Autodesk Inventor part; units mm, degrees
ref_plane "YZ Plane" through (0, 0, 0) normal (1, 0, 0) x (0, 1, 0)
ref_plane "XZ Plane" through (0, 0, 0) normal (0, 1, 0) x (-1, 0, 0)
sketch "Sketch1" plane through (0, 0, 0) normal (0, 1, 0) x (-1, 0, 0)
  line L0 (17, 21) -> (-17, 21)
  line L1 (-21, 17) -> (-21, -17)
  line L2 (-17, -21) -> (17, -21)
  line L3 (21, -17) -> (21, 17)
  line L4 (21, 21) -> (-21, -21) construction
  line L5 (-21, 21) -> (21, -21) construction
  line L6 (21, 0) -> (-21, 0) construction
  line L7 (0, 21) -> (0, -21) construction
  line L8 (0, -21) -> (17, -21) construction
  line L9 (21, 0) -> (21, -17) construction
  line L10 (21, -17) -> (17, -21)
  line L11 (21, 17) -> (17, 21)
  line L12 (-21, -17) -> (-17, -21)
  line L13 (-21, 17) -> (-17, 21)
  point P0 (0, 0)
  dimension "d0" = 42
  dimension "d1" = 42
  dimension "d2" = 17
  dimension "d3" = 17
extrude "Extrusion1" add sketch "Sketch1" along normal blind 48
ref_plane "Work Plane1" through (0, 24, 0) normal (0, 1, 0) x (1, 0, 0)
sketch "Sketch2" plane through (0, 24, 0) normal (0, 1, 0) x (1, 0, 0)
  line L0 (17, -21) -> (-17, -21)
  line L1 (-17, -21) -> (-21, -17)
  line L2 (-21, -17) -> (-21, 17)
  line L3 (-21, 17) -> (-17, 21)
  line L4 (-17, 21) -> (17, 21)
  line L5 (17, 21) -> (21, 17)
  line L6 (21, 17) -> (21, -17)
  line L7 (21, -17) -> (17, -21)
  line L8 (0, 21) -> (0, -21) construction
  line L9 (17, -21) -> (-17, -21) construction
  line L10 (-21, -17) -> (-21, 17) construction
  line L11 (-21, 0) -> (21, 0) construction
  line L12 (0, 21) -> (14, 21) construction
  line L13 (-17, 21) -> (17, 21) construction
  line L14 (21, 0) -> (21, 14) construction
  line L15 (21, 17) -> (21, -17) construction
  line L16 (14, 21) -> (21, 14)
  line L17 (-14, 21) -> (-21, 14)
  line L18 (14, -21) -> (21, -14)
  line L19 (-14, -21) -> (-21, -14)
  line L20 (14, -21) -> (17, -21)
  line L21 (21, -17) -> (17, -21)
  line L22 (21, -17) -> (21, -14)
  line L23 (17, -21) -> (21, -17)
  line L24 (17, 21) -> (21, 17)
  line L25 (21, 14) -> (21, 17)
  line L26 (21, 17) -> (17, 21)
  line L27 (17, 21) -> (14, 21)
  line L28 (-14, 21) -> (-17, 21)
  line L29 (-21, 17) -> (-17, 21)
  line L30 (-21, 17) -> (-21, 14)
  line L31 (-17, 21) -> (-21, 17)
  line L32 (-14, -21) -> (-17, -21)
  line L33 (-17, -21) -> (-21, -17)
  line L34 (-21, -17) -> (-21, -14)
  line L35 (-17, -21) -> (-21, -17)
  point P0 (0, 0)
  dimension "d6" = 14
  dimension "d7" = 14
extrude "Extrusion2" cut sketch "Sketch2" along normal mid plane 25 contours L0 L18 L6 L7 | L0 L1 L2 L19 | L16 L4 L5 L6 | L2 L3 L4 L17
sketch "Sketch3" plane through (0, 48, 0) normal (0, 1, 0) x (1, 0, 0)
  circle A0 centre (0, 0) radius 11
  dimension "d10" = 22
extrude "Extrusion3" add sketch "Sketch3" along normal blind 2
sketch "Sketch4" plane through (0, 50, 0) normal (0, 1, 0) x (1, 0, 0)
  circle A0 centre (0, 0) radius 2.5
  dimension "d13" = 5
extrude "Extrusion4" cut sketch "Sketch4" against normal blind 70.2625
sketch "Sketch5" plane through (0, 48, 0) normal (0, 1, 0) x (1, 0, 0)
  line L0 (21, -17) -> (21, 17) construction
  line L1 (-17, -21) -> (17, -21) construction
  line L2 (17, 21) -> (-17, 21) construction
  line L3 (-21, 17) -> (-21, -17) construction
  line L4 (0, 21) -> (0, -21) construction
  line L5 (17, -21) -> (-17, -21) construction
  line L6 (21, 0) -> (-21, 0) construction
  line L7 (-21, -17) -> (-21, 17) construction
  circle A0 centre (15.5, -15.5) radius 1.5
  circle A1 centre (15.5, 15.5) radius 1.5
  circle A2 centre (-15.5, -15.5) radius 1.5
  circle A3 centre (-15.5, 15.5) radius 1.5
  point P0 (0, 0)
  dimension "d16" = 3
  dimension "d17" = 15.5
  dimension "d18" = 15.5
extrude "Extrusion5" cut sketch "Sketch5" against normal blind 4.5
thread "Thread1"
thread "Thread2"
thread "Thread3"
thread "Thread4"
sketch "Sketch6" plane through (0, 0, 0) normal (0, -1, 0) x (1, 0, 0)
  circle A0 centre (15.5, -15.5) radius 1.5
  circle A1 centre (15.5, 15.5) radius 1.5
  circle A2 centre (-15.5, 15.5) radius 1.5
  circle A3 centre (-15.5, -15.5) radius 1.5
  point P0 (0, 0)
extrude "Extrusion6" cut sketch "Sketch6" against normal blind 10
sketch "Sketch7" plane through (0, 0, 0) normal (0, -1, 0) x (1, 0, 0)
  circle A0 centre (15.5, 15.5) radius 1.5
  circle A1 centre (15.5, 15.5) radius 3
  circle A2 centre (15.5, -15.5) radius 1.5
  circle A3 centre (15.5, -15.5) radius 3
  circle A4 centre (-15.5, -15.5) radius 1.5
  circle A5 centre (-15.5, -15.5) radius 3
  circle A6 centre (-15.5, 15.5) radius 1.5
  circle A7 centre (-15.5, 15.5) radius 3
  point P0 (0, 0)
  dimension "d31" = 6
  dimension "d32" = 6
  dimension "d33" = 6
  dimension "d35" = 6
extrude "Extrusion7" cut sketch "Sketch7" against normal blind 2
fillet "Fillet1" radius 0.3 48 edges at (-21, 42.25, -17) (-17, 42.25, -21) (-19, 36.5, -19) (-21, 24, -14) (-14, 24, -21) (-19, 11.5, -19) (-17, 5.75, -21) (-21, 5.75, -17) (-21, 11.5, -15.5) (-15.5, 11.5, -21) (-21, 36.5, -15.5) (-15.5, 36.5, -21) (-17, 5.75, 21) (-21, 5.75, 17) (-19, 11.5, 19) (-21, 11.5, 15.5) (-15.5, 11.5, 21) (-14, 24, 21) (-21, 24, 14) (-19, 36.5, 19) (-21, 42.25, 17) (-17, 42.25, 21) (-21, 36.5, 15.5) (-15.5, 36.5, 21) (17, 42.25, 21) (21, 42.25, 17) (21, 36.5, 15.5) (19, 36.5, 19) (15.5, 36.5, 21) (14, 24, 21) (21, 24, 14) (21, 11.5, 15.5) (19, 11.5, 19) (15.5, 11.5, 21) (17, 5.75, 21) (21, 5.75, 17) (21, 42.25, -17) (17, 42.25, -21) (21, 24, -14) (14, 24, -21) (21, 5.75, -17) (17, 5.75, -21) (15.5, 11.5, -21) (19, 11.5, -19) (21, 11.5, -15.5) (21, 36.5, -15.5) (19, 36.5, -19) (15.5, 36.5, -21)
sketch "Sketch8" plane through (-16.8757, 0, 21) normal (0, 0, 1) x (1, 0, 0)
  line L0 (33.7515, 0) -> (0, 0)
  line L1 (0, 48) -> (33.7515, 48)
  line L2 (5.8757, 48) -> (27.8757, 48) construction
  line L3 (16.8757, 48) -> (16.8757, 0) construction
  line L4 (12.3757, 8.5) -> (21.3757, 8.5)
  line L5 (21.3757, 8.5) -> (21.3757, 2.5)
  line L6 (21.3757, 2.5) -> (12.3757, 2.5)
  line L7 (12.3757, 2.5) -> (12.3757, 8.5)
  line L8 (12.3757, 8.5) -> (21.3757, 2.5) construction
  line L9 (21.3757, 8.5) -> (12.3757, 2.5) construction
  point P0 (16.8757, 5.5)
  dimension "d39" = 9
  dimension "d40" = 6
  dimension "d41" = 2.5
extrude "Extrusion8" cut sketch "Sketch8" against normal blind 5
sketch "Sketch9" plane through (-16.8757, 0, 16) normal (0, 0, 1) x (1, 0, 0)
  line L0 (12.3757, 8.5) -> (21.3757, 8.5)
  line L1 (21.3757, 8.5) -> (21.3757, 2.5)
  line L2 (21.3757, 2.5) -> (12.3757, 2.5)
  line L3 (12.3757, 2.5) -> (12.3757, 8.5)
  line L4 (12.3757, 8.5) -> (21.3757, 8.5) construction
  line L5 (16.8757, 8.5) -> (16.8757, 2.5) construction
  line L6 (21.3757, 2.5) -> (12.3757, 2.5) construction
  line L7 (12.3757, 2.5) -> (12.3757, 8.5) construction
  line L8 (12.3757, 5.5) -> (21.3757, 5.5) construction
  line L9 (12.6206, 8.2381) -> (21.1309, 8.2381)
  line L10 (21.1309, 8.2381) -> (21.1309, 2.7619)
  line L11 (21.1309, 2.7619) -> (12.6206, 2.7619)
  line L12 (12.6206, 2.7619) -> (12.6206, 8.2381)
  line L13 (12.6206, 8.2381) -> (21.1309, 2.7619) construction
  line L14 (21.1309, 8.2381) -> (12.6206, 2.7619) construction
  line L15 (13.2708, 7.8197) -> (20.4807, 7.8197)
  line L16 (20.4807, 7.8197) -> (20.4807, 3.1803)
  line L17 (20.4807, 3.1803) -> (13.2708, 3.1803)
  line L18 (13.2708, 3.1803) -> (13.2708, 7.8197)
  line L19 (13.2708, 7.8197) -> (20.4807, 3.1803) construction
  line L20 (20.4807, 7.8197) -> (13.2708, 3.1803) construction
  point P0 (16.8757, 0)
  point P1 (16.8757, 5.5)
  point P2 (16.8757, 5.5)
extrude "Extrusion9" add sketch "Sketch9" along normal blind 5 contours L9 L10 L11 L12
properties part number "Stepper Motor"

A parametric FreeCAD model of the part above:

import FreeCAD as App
import Part
import Sketcher

V = App.Vector


def edges_at(feature, points):
    """Names of the edges that pass closest to the given points."""
    edges = feature.Shape.Edges
    near = lambda p: min(range(len(edges)), key=lambda i: edges[i].distToShape(Part.Vertex(*p))[0])
    return sorted({f"Edge{near(p) + 1}" for p in points})

doc = App.newDocument("Part")
body = doc.addObject("PartDesign::Body", "Body")

# Sketch on XZ plane
sketch1 = body.newObject("Sketcher::SketchObject", "Sketch")
sketch1.AttachmentSupport = (doc.getObject("XZ_Plane"), [""])
sketch1.MapMode = "FlatFace"
sketch1.addGeometry(Part.LineSegment(V(-21, 17, 0), V(-17, 21, 0)), False)
sketch1.addGeometry(Part.LineSegment(V(-17, 21, 0), V(17, 21, 0)), False)
sketch1.addGeometry(Part.LineSegment(V(17, 21, 0), V(21, 17, 0)), False)
sketch1.addGeometry(Part.LineSegment(V(21, 17, 0), V(21, -17, 0)), False)
sketch1.addGeometry(Part.LineSegment(V(21, -17, 0), V(17, -21, 0)), False)
sketch1.addGeometry(Part.LineSegment(V(17, -21, 0), V(-17, -21, 0)), False)
sketch1.addGeometry(Part.LineSegment(V(-17, -21, 0), V(-21, -17, 0)), False)
sketch1.addGeometry(Part.LineSegment(V(-21, -17, 0), V(-21, 17, 0)), False)
sketch1.addConstraint(Sketcher.Constraint("Coincident", 0, 2, 1, 1))
sketch1.addConstraint(Sketcher.Constraint("Coincident", 1, 2, 2, 1))
sketch1.addConstraint(Sketcher.Constraint("Coincident", 2, 2, 3, 1))
sketch1.addConstraint(Sketcher.Constraint("Coincident", 3, 2, 4, 1))
sketch1.addConstraint(Sketcher.Constraint("Coincident", 4, 2, 5, 1))
sketch1.addConstraint(Sketcher.Constraint("Coincident", 5, 2, 6, 1))
sketch1.addConstraint(Sketcher.Constraint("Coincident", 6, 2, 7, 1))
sketch1.addConstraint(Sketcher.Constraint("Coincident", 7, 2, 0, 1))
sketch1.addConstraint(Sketcher.Constraint("Horizontal", 1))
sketch1.addConstraint(Sketcher.Constraint("Vertical", 3))
sketch1.addConstraint(Sketcher.Constraint("Horizontal", 5))
sketch1.addConstraint(Sketcher.Constraint("Vertical", 7))
sketch1.addConstraint(Sketcher.Constraint("Symmetric", 0, 2, 4, 2, -1, 1))
sketch1.addConstraint(Sketcher.Constraint("Symmetric", 2, 2, 6, 2, -1, 1))
sketch1.addConstraint(Sketcher.Constraint("Perpendicular", 0, 2))
sketch1.addConstraint(Sketcher.Constraint("Perpendicular", 2, 4))
sketch1.addConstraint(Sketcher.Constraint("Perpendicular", 4, 6))
sketch1.addConstraint(Sketcher.Constraint("Horizontal", 3, 2, 6, 2))
sketch1.addConstraint(Sketcher.Constraint("Vertical", 1, 2, 4, 2))
sketch1.addConstraint(Sketcher.Constraint("Equal", 5, 3))
sketch1.addConstraint(Sketcher.Constraint("DistanceX", 0, 2, -1, 1, 17.0))
sketch1.addConstraint(Sketcher.Constraint("DistanceY", 4, 2, 1, 2, 42.0))
pad1 = body.newObject("PartDesign::Pad", "Pad")
pad1.Profile = sketch1
pad1.Length = 48
pad1.Reversed = True

# Sketch on XZ plane
sketch2 = body.newObject("Sketcher::SketchObject", "Sketch001")
sketch2.AttachmentSupport = (doc.getObject("XZ_Plane"), [""])
sketch2.MapMode = "FlatFace"
sketch2.AttachmentOffset = App.Placement(V(0, 0, -24), App.Rotation())
sketch2.addGeometry(Part.LineSegment(V(14, 21, 0), V(17, 21, 0)), False)
sketch2.addGeometry(Part.LineSegment(V(17, 21, 0), V(21, 17, 0)), False)
sketch2.addGeometry(Part.LineSegment(V(21, 17, 0), V(21, 14, 0)), False)
sketch2.addGeometry(Part.LineSegment(V(21, 14, 0), V(14, 21, 0)), False)
sketch2.addGeometry(Part.LineSegment(V(-17, 21, 0), V(-14, 21, 0)), False)
sketch2.addGeometry(Part.LineSegment(V(-14, 21, 0), V(-21, 14, 0)), False)
sketch2.addGeometry(Part.LineSegment(V(-21, 14, 0), V(-21, 17, 0)), False)
sketch2.addGeometry(Part.LineSegment(V(-21, 17, 0), V(-17, 21, 0)), False)
sketch2.addGeometry(Part.LineSegment(V(14, -21, 0), V(21, -14, 0)), False)
sketch2.addGeometry(Part.LineSegment(V(21, -14, 0), V(21, -17, 0)), False)
sketch2.addGeometry(Part.LineSegment(V(21, -17, 0), V(17, -21, 0)), False)
sketch2.addGeometry(Part.LineSegment(V(17, -21, 0), V(14, -21, 0)), False)
sketch2.addGeometry(Part.LineSegment(V(-21, -17, 0), V(-21, -14, 0)), False)
sketch2.addGeometry(Part.LineSegment(V(-21, -14, 0), V(-14, -21, 0)), False)
sketch2.addGeometry(Part.LineSegment(V(-14, -21, 0), V(-17, -21, 0)), False)
sketch2.addGeometry(Part.LineSegment(V(-17, -21, 0), V(-21, -17, 0)), False)
sketch2.addConstraint(Sketcher.Constraint("Coincident", 0, 2, 1, 1))
sketch2.addConstraint(Sketcher.Constraint("Coincident", 1, 2, 2, 1))
sketch2.addConstraint(Sketcher.Constraint("Coincident", 2, 2, 3, 1))
sketch2.addConstraint(Sketcher.Constraint("Coincident", 3, 2, 0, 1))
sketch2.addConstraint(Sketcher.Constraint("Coincident", 4, 2, 5, 1))
sketch2.addConstraint(Sketcher.Constraint("Coincident", 5, 2, 6, 1))
sketch2.addConstraint(Sketcher.Constraint("Coincident", 6, 2, 7, 1))
sketch2.addConstraint(Sketcher.Constraint("Coincident", 7, 2, 4, 1))
sketch2.addConstraint(Sketcher.Constraint("Coincident", 8, 2, 9, 1))
sketch2.addConstraint(Sketcher.Constraint("Coincident", 9, 2, 10, 1))
sketch2.addConstraint(Sketcher.Constraint("Coincident", 10, 2, 11, 1))
sketch2.addConstraint(Sketcher.Constraint("Coincident", 11, 2, 8, 1))
sketch2.addConstraint(Sketcher.Constraint("Coincident", 12, 2, 13, 1))
sketch2.addConstraint(Sketcher.Constraint("Coincident", 13, 2, 14, 1))
sketch2.addConstraint(Sketcher.Constraint("Coincident", 14, 2, 15, 1))
sketch2.addConstraint(Sketcher.Constraint("Coincident", 15, 2, 12, 1))
sketch2.addConstraint(Sketcher.Constraint("Horizontal", 0))
sketch2.addConstraint(Sketcher.Constraint("Vertical", 2))
sketch2.addConstraint(Sketcher.Constraint("Horizontal", 4))
sketch2.addConstraint(Sketcher.Constraint("Vertical", 6))
sketch2.addConstraint(Sketcher.Constraint("Vertical", 9))
sketch2.addConstraint(Sketcher.Constraint("Horizontal", 11))
sketch2.addConstraint(Sketcher.Constraint("Vertical", 12))
sketch2.addConstraint(Sketcher.Constraint("Horizontal", 14))
sketch2.addConstraint(Sketcher.Constraint("Symmetric", 5, 2, 8, 2, -1, 1))
sketch2.addConstraint(Sketcher.Constraint("Symmetric", 7, 2, 10, 2, -1, 1))
sketch2.addConstraint(Sketcher.Constraint("Symmetric", 2, 2, 12, 2, -1, 1))
sketch2.addConstraint(Sketcher.Constraint("Symmetric", 3, 2, 13, 2, -1, 1))
sketch2.addConstraint(Sketcher.Constraint("Symmetric", 3, 2, 4, 2, -2))
sketch2.addConstraint(Sketcher.Constraint("Symmetric", 2, 2, 5, 2, -2))
sketch2.addConstraint(Sketcher.Constraint("Parallel", 1, 3))
sketch2.addConstraint(Sketcher.Constraint("Perpendicular", 3, 5))
sketch2.addConstraint(Sketcher.Constraint("Parallel", 5, 7))
sketch2.addConstraint(Sketcher.Constraint("Parallel", 7, 8))
sketch2.addConstraint(Sketcher.Constraint("Parallel", 8, 10))
sketch2.addConstraint(Sketcher.Constraint("Parallel", 13, 15))
sketch2.addConstraint(Sketcher.Constraint("Horizontal", 1, 2, 6, 2))
sketch2.addConstraint(Sketcher.Constraint("Horizontal", 9, 2, 15, 2))
sketch2.addConstraint(Sketcher.Constraint("DistanceY", -1, 1, 2, 2, 14.0))
sketch2.addConstraint(Sketcher.Constraint("DistanceX", -1, 1, 3, 2, 14.0))
sketch2.addConstraint(Sketcher.Constraint("DistanceX", 0, 1, 0, 2, 3.0))
sketch2.addConstraint(Sketcher.Constraint("DistanceY", -1, 1, 0, 2, 21.0))
pocket1 = body.newObject("PartDesign::Pocket", "Pocket")
pocket1.Profile = sketch2
pocket1.Length = 25
pocket1.Midplane = True

# Sketch on XZ plane
sketch3 = body.newObject("Sketcher::SketchObject", "Sketch002")
sketch3.AttachmentSupport = (doc.getObject("XZ_Plane"), [""])
sketch3.MapMode = "FlatFace"
sketch3.AttachmentOffset = App.Placement(V(0, 0, -48), App.Rotation())
sketch3.addGeometry(Part.Circle(V(0, 0, 0), V(0, 0, 1), 11), False)
sketch3.addConstraint(Sketcher.Constraint("Coincident", 0, 3, -1, 1))
sketch3.addConstraint(Sketcher.Constraint("Diameter", 0, 22.0))
pad2 = body.newObject("PartDesign::Pad", "Pad001")
pad2.Profile = sketch3
pad2.Length = 2
pad2.Reversed = True

# Sketch on XZ plane
sketch4 = body.newObject("Sketcher::SketchObject", "Sketch003")
sketch4.AttachmentSupport = (doc.getObject("XZ_Plane"), [""])
sketch4.MapMode = "FlatFace"
sketch4.AttachmentOffset = App.Placement(V(0, 0, -50), App.Rotation())
sketch4.addGeometry(Part.Circle(V(0, 0, 0), V(0, 0, 1), 2.5), False)
sketch4.addConstraint(Sketcher.Constraint("Coincident", 0, 3, -1, 1))
sketch4.addConstraint(Sketcher.Constraint("Diameter", 0, 5.0))
pocket2 = body.newObject("PartDesign::Pocket", "Pocket001")
pocket2.Profile = sketch4
pocket2.Length = 70.2625
pocket2.Reversed = True

# Sketch on XZ plane
sketch5 = body.newObject("Sketcher::SketchObject", "Sketch004")
sketch5.AttachmentSupport = (doc.getObject("XZ_Plane"), [""])
sketch5.MapMode = "FlatFace"
sketch5.AttachmentOffset = App.Placement(V(0, 0, -48), App.Rotation())
sketch5.addGeometry(Part.Circle(V(15.5, 15.5, 0), V(0, 0, 1), 1.5), False)
sketch5.addGeometry(Part.Circle(V(15.5, -15.5, 0), V(0, 0, 1), 1.5), False)
sketch5.addGeometry(Part.Circle(V(-15.5, 15.5, 0), V(0, 0, 1), 1.5), False)
sketch5.addGeometry(Part.Circle(V(-15.5, -15.5, 0), V(0, 0, 1), 1.5), False)
sketch5.addConstraint(Sketcher.Constraint("Equal", 0, 1))
sketch5.addConstraint(Sketcher.Constraint("Equal", 1, 2))
sketch5.addConstraint(Sketcher.Constraint("Equal", 2, 3))
sketch5.addConstraint(Sketcher.Constraint("Symmetric", 1, 3, 2, 3, -1, 1))
sketch5.addConstraint(Sketcher.Constraint("Symmetric", 0, 3, 3, 3, -1, 1))
sketch5.addConstraint(Sketcher.Constraint("Symmetric", 0, 3, 2, 3, -2))
sketch5.addConstraint(Sketcher.Constraint("Diameter", 0, 3.0))
sketch5.addConstraint(Sketcher.Constraint("DistanceX", -1, 1, 0, 3, 15.5))
sketch5.addConstraint(Sketcher.Constraint("DistanceY", -1, 1, 0, 3, 15.5))
pocket3 = body.newObject("PartDesign::Pocket", "Pocket002")
pocket3.Profile = sketch5
pocket3.Length = 4.5
pocket3.Reversed = True

# Sketch on XZ plane
sketch6 = body.newObject("Sketcher::SketchObject", "Sketch005")
sketch6.AttachmentSupport = (doc.getObject("XZ_Plane"), [""])
sketch6.MapMode = "FlatFace"
sketch6.addGeometry(Part.Circle(V(15.5, -15.5, 0), V(0, 0, 1), 1.5), False)
sketch6.addGeometry(Part.Circle(V(15.5, 15.5, 0), V(0, 0, 1), 1.5), False)
sketch6.addGeometry(Part.Circle(V(-15.5, 15.5, 0), V(0, 0, 1), 1.5), False)
sketch6.addGeometry(Part.Circle(V(-15.5, -15.5, 0), V(0, 0, 1), 1.5), False)
sketch6.addConstraint(Sketcher.Constraint("Equal", 0, 1))
sketch6.addConstraint(Sketcher.Constraint("Equal", 1, 2))
sketch6.addConstraint(Sketcher.Constraint("Equal", 2, 3))
sketch6.addConstraint(Sketcher.Constraint("Symmetric", 0, 3, 2, 3, -1, 1))
sketch6.addConstraint(Sketcher.Constraint("Symmetric", 1, 3, 3, 3, -1, 1))
sketch6.addConstraint(Sketcher.Constraint("Symmetric", 1, 3, 2, 3, -2))
sketch6.addConstraint(Sketcher.Constraint("Diameter", 0, 3.0))
sketch6.addConstraint(Sketcher.Constraint("DistanceY", 0, 3, 1, 3, 31.0))
sketch6.addConstraint(Sketcher.Constraint("DistanceX", 2, 3, 1, 3, 31.0))
pocket4 = body.newObject("PartDesign::Pocket", "Pocket003")
pocket4.Profile = sketch6
pocket4.Length = 10

# Sketch on XZ plane
sketch7 = body.newObject("Sketcher::SketchObject", "Sketch006")
sketch7.AttachmentSupport = (doc.getObject("XZ_Plane"), [""])
sketch7.MapMode = "FlatFace"
sketch7.addGeometry(Part.Circle(V(15.5, 15.5, 0), V(0, 0, 1), 3), False)
sketch7.addGeometry(Part.Circle(V(15.5, 15.5, 0), V(0, 0, 1), 1.5), False)
sketch7.addGeometry(Part.Circle(V(15.5, -15.5, 0), V(0, 0, 1), 3), False)
sketch7.addGeometry(Part.Circle(V(15.5, -15.5, 0), V(0, 0, 1), 1.5), False)
sketch7.addGeometry(Part.Circle(V(-15.5, -15.5, 0), V(0, 0, 1), 3), False)
sketch7.addGeometry(Part.Circle(V(-15.5, -15.5, 0), V(0, 0, 1), 1.5), False)
sketch7.addGeometry(Part.Circle(V(-15.5, 15.5, 0), V(0, 0, 1), 3), False)
sketch7.addGeometry(Part.Circle(V(-15.5, 15.5, 0), V(0, 0, 1), 1.5), False)
sketch7.addConstraint(Sketcher.Constraint("Coincident", 1, 3, 0, 3))
sketch7.addConstraint(Sketcher.Constraint("Coincident", 3, 3, 2, 3))
sketch7.addConstraint(Sketcher.Constraint("Coincident", 5, 3, 4, 3))
sketch7.addConstraint(Sketcher.Constraint("Coincident", 7, 3, 6, 3))
sketch7.addConstraint(Sketcher.Constraint("Equal", 0, 2))
sketch7.addConstraint(Sketcher.Constraint("Equal", 1, 3))
sketch7.addConstraint(Sketcher.Constraint("Equal", 2, 4))
sketch7.addConstraint(Sketcher.Constraint("Equal", 3, 5))
sketch7.addConstraint(Sketcher.Constraint("Equal", 4, 6))
sketch7.addConstraint(Sketcher.Constraint("Equal", 5, 7))
sketch7.addConstraint(Sketcher.Constraint("Symmetric", 0, 3, 4, 3, -1, 1))
sketch7.addConstraint(Sketcher.Constraint("Symmetric", 2, 3, 6, 3, -1, 1))
sketch7.addConstraint(Sketcher.Constraint("Symmetric", 2, 3, 4, 3, -2))
sketch7.addConstraint(Sketcher.Constraint("Diameter", 0, 6.0))
sketch7.addConstraint(Sketcher.Constraint("Diameter", 1, 3.0))
sketch7.addConstraint(Sketcher.Constraint("DistanceY", 2, 3, 0, 3, 31.0))
sketch7.addConstraint(Sketcher.Constraint("DistanceX", 4, 3, 2, 3, 31.0))
pocket5 = body.newObject("PartDesign::Pocket", "Pocket004")
pocket5.Profile = sketch7
pocket5.Length = 2
doc.recompute()

fillet = body.newObject("PartDesign::Fillet", "Fillet")
fillet.Base = (pocket5, edges_at(pocket5, [
    (-21, 42.25, -17),
    (-17, 42.25, -21),
    (-19, 36.5, -19),
    (-21, 24, -14),
    (-14, 24, -21),
    (-19, 11.5, -19),
    (-17, 5.75, -21),
    (-21, 5.75, -17),
    (-21, 11.5, -15.5),
    (-15.5, 11.5, -21),
    (-21, 36.5, -15.5),
    (-15.5, 36.5, -21),
    (-17, 5.75, 21),
    (-21, 5.75, 17),
    (-19, 11.5, 19),
    (-21, 11.5, 15.5),
    (-15.5, 11.5, 21),
    (-14, 24, 21),
    (-21, 24, 14),
    (-19, 36.5, 19),
    (-21, 42.25, 17),
    (-17, 42.25, 21),
    (-21, 36.5, 15.5),
    (-15.5, 36.5, 21),
    (17, 42.25, 21),
    (21, 42.25, 17),
    (21, 36.5, 15.5),
    (19, 36.5, 19),
    (15.5, 36.5, 21),
    (14, 24, 21),
    (21, 24, 14),
    (21, 11.5, 15.5),
    (19, 11.5, 19),
    (15.5, 11.5, 21),
    (17, 5.75, 21),
    (21, 5.75, 17),
    (21, 42.25, -17),
    (17, 42.25, -21),
    (21, 24, -14),
    (14, 24, -21),
    (21, 5.75, -17),
    (17, 5.75, -21),
    (15.5, 11.5, -21),
    (19, 11.5, -19),
    (21, 11.5, -15.5),
    (21, 36.5, -15.5),
    (19, 36.5, -19),
    (15.5, 36.5, -21),
]))
fillet.Radius = 0.3

# Sketch on XY plane
sketch8 = body.newObject("Sketcher::SketchObject", "Sketch007")
sketch8.AttachmentSupport = (doc.getObject("XY_Plane"), [""])
sketch8.MapMode = "FlatFace"
sketch8.AttachmentOffset = App.Placement(V(0, 0, 21), App.Rotation())
sketch8.addGeometry(Part.LineSegment(V(4, 8, 0), V(-4, 8, 0)), False)
sketch8.addGeometry(Part.LineSegment(V(-4, 8, 0), V(-4, 2, 0)), False)
sketch8.addGeometry(Part.LineSegment(V(-4, 2, 0), V(4, 2, 0)), False)
sketch8.addGeometry(Part.LineSegment(V(4, 2, 0), V(4, 8, 0)), False)
sketch8.addConstraint(Sketcher.Constraint("Coincident", 0, 2, 1, 1))
sketch8.addConstraint(Sketcher.Constraint("Coincident", 1, 2, 2, 1))
sketch8.addConstraint(Sketcher.Constraint("Coincident", 2, 2, 3, 1))
sketch8.addConstraint(Sketcher.Constraint("Coincident", 3, 2, 0, 1))
sketch8.addConstraint(Sketcher.Constraint("Horizontal", 0))
sketch8.addConstraint(Sketcher.Constraint("Vertical", 1))
sketch8.addConstraint(Sketcher.Constraint("Horizontal", 2))
sketch8.addConstraint(Sketcher.Constraint("Vertical", 3))
sketch8.addConstraint(Sketcher.Constraint("DistanceX", 0, 2, 0, 1, 9.0))
sketch8.addConstraint(Sketcher.Constraint("DistanceY", 1, 2, 1, 1, 6.0))
sketch8.addConstraint(Sketcher.Constraint("DistanceY", -1, 1, 1, 2, 2.5))
sketch8.addConstraint(Sketcher.Constraint("DistanceX", 0, 2, -1, 1, 4.5))
pocket6 = body.newObject("PartDesign::Pocket", "Pocket005")
pocket6.Profile = sketch8
pocket6.Length = 5

# Sketch on XY plane
sketch9 = body.newObject("Sketcher::SketchObject", "Sketch008")
sketch9.AttachmentSupport = (doc.getObject("XY_Plane"), [""])
sketch9.MapMode = "FlatFace"
sketch9.AttachmentOffset = App.Placement(V(0, 0, 16), App.Rotation())
sketch9.addGeometry(Part.LineSegment(V(4.3, 8.2, 0), V(-4.3, 8.2, 0)), False)
sketch9.addGeometry(Part.LineSegment(V(-4.3, 8.2, 0), V(-4.3, 2.8, 0)), False)
sketch9.addGeometry(Part.LineSegment(V(-4.3, 2.8, 0), V(4.3, 2.8, 0)), False)
sketch9.addGeometry(Part.LineSegment(V(4.3, 2.8, 0), V(4.3, 8.2, 0)), False)
sketch9.addGeometry(Part.LineSegment(V(-3.6, 3.2, 0), V(-3.6, 7.8, 0)), False)
sketch9.addGeometry(Part.LineSegment(V(-3.6, 7.8, 0), V(3.6, 7.8, 0)), False)
sketch9.addGeometry(Part.LineSegment(V(3.6, 7.8, 0), V(3.6, 3.2, 0)), False)
sketch9.addGeometry(Part.LineSegment(V(3.6, 3.2, 0), V(-3.6, 3.2, 0)), False)
sketch9.addConstraint(Sketcher.Constraint("Coincident", 0, 2, 1, 1))
sketch9.addConstraint(Sketcher.Constraint("Coincident", 1, 2, 2, 1))
sketch9.addConstraint(Sketcher.Constraint("Coincident", 2, 2, 3, 1))
sketch9.addConstraint(Sketcher.Constraint("Coincident", 3, 2, 0, 1))
sketch9.addConstraint(Sketcher.Constraint("Coincident", 4, 2, 5, 1))
sketch9.addConstraint(Sketcher.Constraint("Coincident", 5, 2, 6, 1))
sketch9.addConstraint(Sketcher.Constraint("Coincident", 6, 2, 7, 1))
sketch9.addConstraint(Sketcher.Constraint("Coincident", 7, 2, 4, 1))
sketch9.addConstraint(Sketcher.Constraint("Horizontal", 0))
sketch9.addConstraint(Sketcher.Constraint("Vertical", 1))
sketch9.addConstraint(Sketcher.Constraint("Horizontal", 2))
sketch9.addConstraint(Sketcher.Constraint("Vertical", 3))
sketch9.addConstraint(Sketcher.Constraint("Vertical", 4))
sketch9.addConstraint(Sketcher.Constraint("Horizontal", 5))
sketch9.addConstraint(Sketcher.Constraint("Vertical", 6))
sketch9.addConstraint(Sketcher.Constraint("Horizontal", 7))
sketch9.addConstraint(Sketcher.Constraint("DistanceX", 5, 1, 5, 2, 7.21))
sketch9.addConstraint(Sketcher.Constraint("DistanceX", 4, 2, 3, 2, 7.86))
sketch9.addConstraint(Sketcher.Constraint("DistanceX", 0, 2, 5, 2, 7.86))
sketch9.addConstraint(Sketcher.Constraint("DistanceY", 1, 2, 1, 1, 5.4762))
sketch9.addConstraint(Sketcher.Constraint("DistanceY", 4, 1, 4, 2, 4.6394))
sketch9.addConstraint(Sketcher.Constraint("DistanceX", 0, 2, -1, 1, 4.255))
sketch9.addConstraint(Sketcher.Constraint("DistanceY", -1, 1, 0, 2, 8.238))
sketch9.addConstraint(Sketcher.Constraint("DistanceY", -1, 1, 4, 2, 7.8197))
pad3 = body.newObject("PartDesign::Pad", "Pad002")
pad3.Profile = sketch9
pad3.Length = 5

doc.recompute()
